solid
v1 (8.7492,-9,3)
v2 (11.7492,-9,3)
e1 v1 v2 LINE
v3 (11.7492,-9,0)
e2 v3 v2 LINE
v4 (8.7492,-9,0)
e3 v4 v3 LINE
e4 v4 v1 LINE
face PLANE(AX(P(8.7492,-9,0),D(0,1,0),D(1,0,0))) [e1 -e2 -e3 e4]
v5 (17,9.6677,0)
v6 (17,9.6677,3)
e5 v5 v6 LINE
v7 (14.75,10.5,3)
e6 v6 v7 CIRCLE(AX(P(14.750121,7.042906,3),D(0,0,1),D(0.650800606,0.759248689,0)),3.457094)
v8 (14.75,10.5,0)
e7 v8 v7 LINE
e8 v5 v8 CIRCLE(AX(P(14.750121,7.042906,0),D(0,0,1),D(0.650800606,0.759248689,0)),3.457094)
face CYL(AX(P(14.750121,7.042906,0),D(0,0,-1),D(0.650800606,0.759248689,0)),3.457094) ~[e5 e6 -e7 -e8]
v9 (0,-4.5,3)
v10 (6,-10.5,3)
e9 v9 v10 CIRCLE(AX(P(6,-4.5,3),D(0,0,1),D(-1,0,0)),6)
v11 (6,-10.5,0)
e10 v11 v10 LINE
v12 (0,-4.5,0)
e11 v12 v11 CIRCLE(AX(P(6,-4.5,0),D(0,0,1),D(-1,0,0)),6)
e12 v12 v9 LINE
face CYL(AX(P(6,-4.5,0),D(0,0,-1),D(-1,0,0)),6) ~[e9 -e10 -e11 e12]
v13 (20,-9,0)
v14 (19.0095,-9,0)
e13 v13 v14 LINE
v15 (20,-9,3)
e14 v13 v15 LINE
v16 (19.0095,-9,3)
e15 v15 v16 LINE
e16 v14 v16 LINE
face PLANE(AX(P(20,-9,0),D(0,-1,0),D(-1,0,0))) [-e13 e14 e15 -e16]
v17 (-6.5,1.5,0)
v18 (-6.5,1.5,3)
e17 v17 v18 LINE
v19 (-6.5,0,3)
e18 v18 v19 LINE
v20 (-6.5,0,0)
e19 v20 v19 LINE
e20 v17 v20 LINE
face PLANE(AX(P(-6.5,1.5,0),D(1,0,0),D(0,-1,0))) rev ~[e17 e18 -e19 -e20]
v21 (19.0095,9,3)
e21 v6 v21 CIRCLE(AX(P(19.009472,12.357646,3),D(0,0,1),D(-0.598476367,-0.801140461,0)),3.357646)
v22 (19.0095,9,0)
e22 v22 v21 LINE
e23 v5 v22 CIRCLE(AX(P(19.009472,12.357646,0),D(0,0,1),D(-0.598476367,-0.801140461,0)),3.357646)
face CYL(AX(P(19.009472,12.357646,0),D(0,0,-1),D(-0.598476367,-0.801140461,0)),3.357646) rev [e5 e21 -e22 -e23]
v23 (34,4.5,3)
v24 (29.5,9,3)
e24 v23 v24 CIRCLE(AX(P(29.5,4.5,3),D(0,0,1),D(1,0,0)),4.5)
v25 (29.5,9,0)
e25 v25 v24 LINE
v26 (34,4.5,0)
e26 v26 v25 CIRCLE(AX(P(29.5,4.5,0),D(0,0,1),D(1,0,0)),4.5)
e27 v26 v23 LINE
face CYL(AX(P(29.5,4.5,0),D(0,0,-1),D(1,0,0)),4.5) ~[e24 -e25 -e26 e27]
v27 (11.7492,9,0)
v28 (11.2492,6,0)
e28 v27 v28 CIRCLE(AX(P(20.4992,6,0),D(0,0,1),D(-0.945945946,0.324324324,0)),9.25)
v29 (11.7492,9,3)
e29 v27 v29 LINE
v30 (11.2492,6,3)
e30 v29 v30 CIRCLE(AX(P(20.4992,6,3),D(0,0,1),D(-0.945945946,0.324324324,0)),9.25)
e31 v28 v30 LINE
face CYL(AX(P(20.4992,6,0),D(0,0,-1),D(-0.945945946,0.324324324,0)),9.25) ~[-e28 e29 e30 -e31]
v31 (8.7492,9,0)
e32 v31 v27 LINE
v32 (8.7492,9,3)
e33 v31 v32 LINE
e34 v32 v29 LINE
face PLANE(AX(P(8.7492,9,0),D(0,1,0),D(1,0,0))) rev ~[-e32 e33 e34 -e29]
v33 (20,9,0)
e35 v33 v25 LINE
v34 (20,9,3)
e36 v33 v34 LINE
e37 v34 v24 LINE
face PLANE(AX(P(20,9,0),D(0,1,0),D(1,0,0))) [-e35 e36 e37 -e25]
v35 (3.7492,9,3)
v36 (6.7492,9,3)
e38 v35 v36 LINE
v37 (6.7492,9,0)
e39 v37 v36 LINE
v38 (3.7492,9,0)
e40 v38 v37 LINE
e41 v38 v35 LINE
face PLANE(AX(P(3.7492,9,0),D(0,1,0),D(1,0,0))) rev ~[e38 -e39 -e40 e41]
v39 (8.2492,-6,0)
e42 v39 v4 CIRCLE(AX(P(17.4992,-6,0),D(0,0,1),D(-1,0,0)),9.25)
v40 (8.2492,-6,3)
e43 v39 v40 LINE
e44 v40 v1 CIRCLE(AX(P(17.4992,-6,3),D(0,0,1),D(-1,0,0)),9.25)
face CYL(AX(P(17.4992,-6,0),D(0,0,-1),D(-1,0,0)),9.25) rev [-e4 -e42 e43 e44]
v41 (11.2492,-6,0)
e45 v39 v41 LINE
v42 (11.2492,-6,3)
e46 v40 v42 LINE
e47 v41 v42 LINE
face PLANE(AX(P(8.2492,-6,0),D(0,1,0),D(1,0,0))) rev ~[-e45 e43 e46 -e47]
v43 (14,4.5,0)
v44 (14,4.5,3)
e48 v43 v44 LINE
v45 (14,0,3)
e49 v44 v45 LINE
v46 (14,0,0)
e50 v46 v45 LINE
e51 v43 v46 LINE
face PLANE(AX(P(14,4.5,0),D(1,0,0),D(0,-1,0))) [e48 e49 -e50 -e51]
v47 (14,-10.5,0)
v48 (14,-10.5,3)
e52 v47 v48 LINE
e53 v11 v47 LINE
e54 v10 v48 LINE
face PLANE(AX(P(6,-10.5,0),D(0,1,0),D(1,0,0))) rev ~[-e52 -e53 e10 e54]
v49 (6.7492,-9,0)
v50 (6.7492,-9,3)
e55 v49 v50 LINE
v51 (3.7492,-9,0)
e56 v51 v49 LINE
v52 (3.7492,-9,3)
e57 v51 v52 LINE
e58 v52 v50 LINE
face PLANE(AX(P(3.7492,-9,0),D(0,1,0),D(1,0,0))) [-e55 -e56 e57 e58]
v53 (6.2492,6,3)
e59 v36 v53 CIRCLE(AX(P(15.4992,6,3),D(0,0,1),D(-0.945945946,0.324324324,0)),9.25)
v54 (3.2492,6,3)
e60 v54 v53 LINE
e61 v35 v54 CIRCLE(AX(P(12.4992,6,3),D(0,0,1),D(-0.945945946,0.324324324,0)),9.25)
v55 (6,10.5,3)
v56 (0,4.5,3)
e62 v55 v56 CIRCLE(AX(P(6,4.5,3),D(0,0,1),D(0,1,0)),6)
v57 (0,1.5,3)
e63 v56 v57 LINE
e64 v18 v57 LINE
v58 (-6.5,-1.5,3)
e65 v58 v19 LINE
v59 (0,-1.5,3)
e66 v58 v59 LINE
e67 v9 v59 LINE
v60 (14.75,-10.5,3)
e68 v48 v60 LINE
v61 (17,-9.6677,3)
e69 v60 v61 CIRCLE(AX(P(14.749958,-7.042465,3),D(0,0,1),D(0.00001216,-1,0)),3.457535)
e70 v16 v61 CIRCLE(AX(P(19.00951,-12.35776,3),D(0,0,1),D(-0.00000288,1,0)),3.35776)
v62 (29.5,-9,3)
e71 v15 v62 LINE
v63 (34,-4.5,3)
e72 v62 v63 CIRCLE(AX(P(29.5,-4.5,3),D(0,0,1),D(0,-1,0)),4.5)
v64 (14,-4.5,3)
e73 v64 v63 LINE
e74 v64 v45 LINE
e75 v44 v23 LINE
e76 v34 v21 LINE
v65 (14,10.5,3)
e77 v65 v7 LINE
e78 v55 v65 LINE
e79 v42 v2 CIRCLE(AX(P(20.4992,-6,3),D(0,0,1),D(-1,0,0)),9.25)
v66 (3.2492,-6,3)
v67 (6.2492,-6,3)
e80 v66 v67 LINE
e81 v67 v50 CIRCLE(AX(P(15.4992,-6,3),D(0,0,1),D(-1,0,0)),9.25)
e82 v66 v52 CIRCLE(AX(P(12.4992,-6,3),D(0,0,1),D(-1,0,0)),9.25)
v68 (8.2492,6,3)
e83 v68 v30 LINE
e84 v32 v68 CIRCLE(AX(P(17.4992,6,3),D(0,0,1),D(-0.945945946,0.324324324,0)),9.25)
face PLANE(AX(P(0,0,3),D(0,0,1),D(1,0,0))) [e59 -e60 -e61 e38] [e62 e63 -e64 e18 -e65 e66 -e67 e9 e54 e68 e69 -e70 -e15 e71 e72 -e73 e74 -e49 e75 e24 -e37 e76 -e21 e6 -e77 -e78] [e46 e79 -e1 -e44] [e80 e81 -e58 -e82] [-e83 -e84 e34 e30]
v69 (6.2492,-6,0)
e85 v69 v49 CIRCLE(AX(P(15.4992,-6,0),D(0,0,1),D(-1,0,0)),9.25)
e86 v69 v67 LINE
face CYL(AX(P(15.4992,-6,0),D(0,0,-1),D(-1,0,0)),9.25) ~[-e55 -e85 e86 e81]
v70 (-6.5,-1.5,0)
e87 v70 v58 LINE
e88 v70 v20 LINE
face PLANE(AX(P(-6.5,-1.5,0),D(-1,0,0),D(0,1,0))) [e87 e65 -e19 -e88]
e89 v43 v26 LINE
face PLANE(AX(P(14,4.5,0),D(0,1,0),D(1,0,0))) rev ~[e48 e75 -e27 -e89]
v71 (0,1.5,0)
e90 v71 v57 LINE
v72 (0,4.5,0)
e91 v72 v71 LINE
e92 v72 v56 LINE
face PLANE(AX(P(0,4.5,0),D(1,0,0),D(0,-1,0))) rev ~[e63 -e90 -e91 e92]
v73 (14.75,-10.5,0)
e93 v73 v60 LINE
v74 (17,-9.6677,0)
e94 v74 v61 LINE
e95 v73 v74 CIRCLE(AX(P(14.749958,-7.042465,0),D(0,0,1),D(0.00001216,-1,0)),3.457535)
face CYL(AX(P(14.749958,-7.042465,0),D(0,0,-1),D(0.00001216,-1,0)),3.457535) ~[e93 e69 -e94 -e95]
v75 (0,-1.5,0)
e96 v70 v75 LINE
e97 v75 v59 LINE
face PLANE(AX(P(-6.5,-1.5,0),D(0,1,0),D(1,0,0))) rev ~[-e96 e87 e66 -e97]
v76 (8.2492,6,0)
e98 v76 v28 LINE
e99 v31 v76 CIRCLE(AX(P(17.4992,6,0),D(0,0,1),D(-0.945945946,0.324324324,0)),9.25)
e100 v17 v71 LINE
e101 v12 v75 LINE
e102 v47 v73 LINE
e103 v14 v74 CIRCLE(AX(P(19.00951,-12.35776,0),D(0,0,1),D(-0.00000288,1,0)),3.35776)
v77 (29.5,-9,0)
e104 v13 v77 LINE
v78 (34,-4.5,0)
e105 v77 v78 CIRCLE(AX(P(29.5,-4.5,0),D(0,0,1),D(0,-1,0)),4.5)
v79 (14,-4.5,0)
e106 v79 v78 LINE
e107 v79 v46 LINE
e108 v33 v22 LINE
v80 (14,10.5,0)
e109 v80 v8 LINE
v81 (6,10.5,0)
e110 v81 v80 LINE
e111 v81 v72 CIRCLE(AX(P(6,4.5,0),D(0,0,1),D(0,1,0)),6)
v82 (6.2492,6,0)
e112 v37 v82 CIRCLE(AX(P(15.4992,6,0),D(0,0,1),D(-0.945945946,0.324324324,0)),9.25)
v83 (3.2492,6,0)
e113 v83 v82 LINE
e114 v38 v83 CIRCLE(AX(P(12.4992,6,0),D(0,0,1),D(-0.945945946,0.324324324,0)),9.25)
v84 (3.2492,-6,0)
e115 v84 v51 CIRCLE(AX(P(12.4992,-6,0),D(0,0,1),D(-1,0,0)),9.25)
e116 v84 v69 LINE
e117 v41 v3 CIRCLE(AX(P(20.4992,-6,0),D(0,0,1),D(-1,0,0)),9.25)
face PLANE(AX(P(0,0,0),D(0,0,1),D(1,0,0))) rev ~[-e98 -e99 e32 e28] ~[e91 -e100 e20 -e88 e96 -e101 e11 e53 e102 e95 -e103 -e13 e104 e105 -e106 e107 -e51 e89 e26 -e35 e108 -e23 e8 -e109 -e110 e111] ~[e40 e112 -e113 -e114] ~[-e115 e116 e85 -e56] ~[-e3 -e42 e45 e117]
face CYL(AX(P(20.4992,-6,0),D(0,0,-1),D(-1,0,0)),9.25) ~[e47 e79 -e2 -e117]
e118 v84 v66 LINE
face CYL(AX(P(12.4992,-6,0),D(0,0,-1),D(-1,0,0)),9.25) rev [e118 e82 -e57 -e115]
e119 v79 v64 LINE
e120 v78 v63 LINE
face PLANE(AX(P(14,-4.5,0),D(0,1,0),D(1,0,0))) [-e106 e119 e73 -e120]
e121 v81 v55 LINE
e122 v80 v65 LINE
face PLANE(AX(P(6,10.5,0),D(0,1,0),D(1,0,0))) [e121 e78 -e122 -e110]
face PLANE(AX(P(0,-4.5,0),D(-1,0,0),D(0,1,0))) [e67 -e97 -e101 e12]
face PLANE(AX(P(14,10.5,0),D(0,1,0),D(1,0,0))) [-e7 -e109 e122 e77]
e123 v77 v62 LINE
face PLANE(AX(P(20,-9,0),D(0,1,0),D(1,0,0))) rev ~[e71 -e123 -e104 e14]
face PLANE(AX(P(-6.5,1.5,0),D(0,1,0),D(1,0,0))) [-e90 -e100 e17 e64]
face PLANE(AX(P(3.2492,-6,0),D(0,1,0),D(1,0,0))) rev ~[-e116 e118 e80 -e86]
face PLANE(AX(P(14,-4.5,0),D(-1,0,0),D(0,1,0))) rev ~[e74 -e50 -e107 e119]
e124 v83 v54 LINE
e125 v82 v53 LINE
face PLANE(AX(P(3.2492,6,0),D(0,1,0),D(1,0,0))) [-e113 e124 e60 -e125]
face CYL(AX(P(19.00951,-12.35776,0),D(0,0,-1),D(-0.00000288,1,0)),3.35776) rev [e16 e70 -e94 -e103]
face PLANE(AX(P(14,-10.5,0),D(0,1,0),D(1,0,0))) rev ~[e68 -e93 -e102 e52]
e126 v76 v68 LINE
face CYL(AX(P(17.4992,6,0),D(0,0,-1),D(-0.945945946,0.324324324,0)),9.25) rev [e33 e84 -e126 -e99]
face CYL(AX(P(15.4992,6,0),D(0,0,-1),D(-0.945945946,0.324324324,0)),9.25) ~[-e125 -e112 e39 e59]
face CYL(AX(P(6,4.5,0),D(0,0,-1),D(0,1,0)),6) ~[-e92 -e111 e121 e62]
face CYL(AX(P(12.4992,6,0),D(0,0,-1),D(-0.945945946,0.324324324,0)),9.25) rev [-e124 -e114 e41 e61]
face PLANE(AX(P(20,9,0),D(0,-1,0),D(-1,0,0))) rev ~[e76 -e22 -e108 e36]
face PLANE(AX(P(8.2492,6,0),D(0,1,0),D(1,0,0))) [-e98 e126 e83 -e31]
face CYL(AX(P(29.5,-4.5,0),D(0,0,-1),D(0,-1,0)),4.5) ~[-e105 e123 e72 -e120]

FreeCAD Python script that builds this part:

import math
import FreeCAD as App
import Part
import Sketcher
Q = App.Units.Quantity

doc = App.newDocument("Part")
body = doc.addObject("PartDesign::Body", "Body")

sketch1 = doc.addObject("Sketcher::SketchObject", "Sketch")
body.addObject(sketch1)
sketch1.AttachmentSupport = (doc.XY_Plane, [""])
sketch1.MapMode = "FlatFace"
sketch1.addGeometry([
    Part.LineSegment(App.Vector(0, 1.5, 0), App.Vector(-6.5, 1.5, 0)),
    Part.LineSegment(App.Vector(-6.5, 1.5, 0), App.Vector(-6.5, -1.5, 0)),
    Part.LineSegment(App.Vector(-6.5, -1.5, 0), App.Vector(0, -1.5, 0)),
    Part.LineSegment(App.Vector(0, -1.5, 0), App.Vector(0, -4.5, 0)),
    Part.ArcOfCircle(Part.Circle(App.Vector(6, -4.5, 0), App.Vector(0, 0, 1), 6), math.radians(180), math.radians(270)),
    Part.LineSegment(App.Vector(6, -10.5, 0), App.Vector(14.8, -10.5, 0)),
    Part.ArcOfCircle(Part.Circle(App.Vector(14.8, -7, 0), App.Vector(0, 0, 1), 3.5), math.radians(-90), math.radians(-49)),
    Part.ArcOfCircle(Part.Circle(App.Vector(19, -12.4, 0), App.Vector(0, 0, 1), 3.4), math.radians(90), math.radians(127)),
    Part.LineSegment(App.Vector(19, -9, 0), App.Vector(29.5, -9, 0)),
    Part.ArcOfCircle(Part.Circle(App.Vector(29.5, -4.5, 0), App.Vector(0, 0, 1), 4.5), math.radians(-90), math.radians(0)),
    Part.LineSegment(App.Vector(34, -4.5, 0), App.Vector(14, -4.5, 0)),
    Part.LineSegment(App.Vector(14, -4.5, 0), App.Vector(14, 4.5, 0)),
    Part.LineSegment(App.Vector(14, 4.5, 0), App.Vector(34, 4.5, 0)),
    Part.ArcOfCircle(Part.Circle(App.Vector(29.5, 4.5, 0), App.Vector(0, 0, 1), 4.5), math.radians(0), math.radians(90)),
    Part.LineSegment(App.Vector(29.5, 9, 0), App.Vector(19, 9, 0)),
    Part.ArcOfCircle(Part.Circle(App.Vector(19, 12.4, 0), App.Vector(0, 0, 1), 3.4), math.radians(-127), math.radians(-90)),
    Part.ArcOfCircle(Part.Circle(App.Vector(14.8, 7, 0), App.Vector(0, 0, 1), 3.5), math.radians(49), math.radians(90)),
    Part.LineSegment(App.Vector(14.8, 10.5, 0), App.Vector(6, 10.5, 0)),
    Part.ArcOfCircle(Part.Circle(App.Vector(6, 4.5, 0), App.Vector(0, 0, 1), 6), math.radians(90), math.radians(180)),
    Part.LineSegment(App.Vector(0, 4.5, 0), App.Vector(0, 1.5, 0)),
    Part.ArcOfCircle(Part.Circle(App.Vector(12.5, -6, 0), App.Vector(0, 0, 1), 9.2), math.radians(180), math.radians(198.92)),
    Part.LineSegment(App.Vector(3.2, -6, 0), App.Vector(6.2, -6, 0)),
    Part.ArcOfCircle(Part.Circle(App.Vector(15.5, -6, 0), App.Vector(0, 0, 1), 9.2), math.radians(180), math.radians(198.92)),
    Part.LineSegment(App.Vector(6.7, -9, 0), App.Vector(3.7, -9, 0)),
    Part.LineSegment(App.Vector(8.2, -6, 0), App.Vector(11.2, -6, 0)),
    Part.ArcOfCircle(Part.Circle(App.Vector(20.5, -6, 0), App.Vector(0, 0, 1), 9.2), math.radians(180), math.radians(198.92)),
    Part.LineSegment(App.Vector(11.7, -9, 0), App.Vector(8.7, -9, 0)),
    Part.ArcOfCircle(Part.Circle(App.Vector(17.5, -6, 0), App.Vector(0, 0, 1), 9.2), math.radians(180), math.radians(198.92)),
    Part.LineSegment(App.Vector(6.2, 6, 0), App.Vector(3.2, 6, 0)),
    Part.ArcOfCircle(Part.Circle(App.Vector(12.5, 6, 0), App.Vector(0, 0, 1), 9.2), math.radians(161.08), math.radians(180)),
    Part.LineSegment(App.Vector(3.7, 9, 0), App.Vector(6.7, 9, 0)),
    Part.ArcOfCircle(Part.Circle(App.Vector(15.5, 6, 0), App.Vector(0, 0, 1), 9.2), math.radians(161.08), math.radians(180)),
    Part.LineSegment(App.Vector(11.2, 6, 0), App.Vector(8.2, 6, 0)),
    Part.ArcOfCircle(Part.Circle(App.Vector(17.5, 6, 0), App.Vector(0, 0, 1), 9.2), math.radians(161.08), math.radians(180)),
    Part.LineSegment(App.Vector(8.7, 9, 0), App.Vector(11.7, 9, 0)),
    Part.ArcOfCircle(Part.Circle(App.Vector(20.5, 6, 0), App.Vector(0, 0, 1), 9.2), math.radians(161.08), math.radians(180)),
], False)
sketch1.addConstraint([
    Sketcher.Constraint("Coincident", 0, 2, 1, 1),
    Sketcher.Constraint("Coincident", 1, 2, 2, 1),
    Sketcher.Constraint("Coincident", 2, 2, 3, 1),
    Sketcher.Constraint("Tangent", 3, 2, 4, 1),
    Sketcher.Constraint("Tangent", 4, 2, 5, 1),
    Sketcher.Constraint("Tangent", 5, 2, 6, 1),
    Sketcher.Constraint("Coincident", 6, 2, 7, 2),
    Sketcher.Constraint("Tangent", 7, 1, 8, 1),
    Sketcher.Constraint("Tangent", 8, 2, 9, 1),
    Sketcher.Constraint("Coincident", 9, 2, 10, 1),
    Sketcher.Constraint("Coincident", 10, 2, 11, 1),
    Sketcher.Constraint("Coincident", 11, 2, 12, 1),
    Sketcher.Constraint("Coincident", 12, 2, 13, 1),
    Sketcher.Constraint("Tangent", 13, 2, 14, 1),
    Sketcher.Constraint("Tangent", 14, 2, 15, 2),
    Sketcher.Constraint("Coincident", 15, 1, 16, 1),
    Sketcher.Constraint("Tangent", 16, 2, 17, 1),
    Sketcher.Constraint("Tangent", 17, 2, 18, 1),
    Sketcher.Constraint("Tangent", 18, 2, 19, 1),
    Sketcher.Constraint("Coincident", 19, 2, 0, 1),
    Sketcher.Constraint("Coincident", 20, 1, 21, 1),
    Sketcher.Constraint("Coincident", 21, 2, 22, 1),
    Sketcher.Constraint("Coincident", 22, 2, 23, 1),
    Sketcher.Constraint("Coincident", 23, 2, 20, 2),
    Sketcher.Constraint("Coincident", 24, 2, 25, 1),
    Sketcher.Constraint("Coincident", 25, 2, 26, 1),
    Sketcher.Constraint("Coincident", 26, 2, 27, 2),
    Sketcher.Constraint("Coincident", 27, 1, 24, 1),
    Sketcher.Constraint("Coincident", 28, 2, 29, 2),
    Sketcher.Constraint("Coincident", 29, 1, 30, 1),
    Sketcher.Constraint("Coincident", 30, 2, 31, 1),
    Sketcher.Constraint("Coincident", 31, 2, 28, 1),
    Sketcher.Constraint("Coincident", 32, 2, 33, 2),
    Sketcher.Constraint("Coincident", 33, 1, 34, 1),
    Sketcher.Constraint("Coincident", 34, 2, 35, 1),
    Sketcher.Constraint("Coincident", 35, 2, 32, 1),
    Sketcher.Constraint("Horizontal", 0),
    Sketcher.Constraint("Vertical", 1),
    Sketcher.Constraint("Horizontal", 2),
    Sketcher.Constraint("Vertical", 3),
    Sketcher.Constraint("Horizontal", 5),
    Sketcher.Constraint("Horizontal", 8),
    Sketcher.Constraint("Horizontal", 10),
    Sketcher.Constraint("Vertical", 11),
    Sketcher.Constraint("Horizontal", 12),
    Sketcher.Constraint("Horizontal", 14),
    Sketcher.Constraint("Horizontal", 17),
    Sketcher.Constraint("Vertical", 19),
    Sketcher.Constraint("Horizontal", 21),
    Sketcher.Constraint("Horizontal", 23),
    Sketcher.Constraint("Horizontal", 24),
    Sketcher.Constraint("Horizontal", 26),
    Sketcher.Constraint("Horizontal", 28),
    Sketcher.Constraint("Horizontal", 30),
    Sketcher.Constraint("Horizontal", 32),
    Sketcher.Constraint("Horizontal", 34),
    Sketcher.Constraint("Equal", 9, 13),
    Sketcher.Constraint("Equal", 7, 15),
    Sketcher.Constraint("Equal", 6, 16),
    Sketcher.Constraint("Equal", 4, 18),
    Sketcher.Constraint("Equal", 20, 22),
    Sketcher.Constraint("Equal", 22, 25),
    Sketcher.Constraint("Equal", 25, 27),
    Sketcher.Constraint("Equal", 27, 29),
    Sketcher.Constraint("Equal", 29, 31),
    Sketcher.Constraint("Equal", 31, 33),
    Sketcher.Constraint("Equal", 33, 35),
    Sketcher.Constraint("Symmetric", 3, 2, 18, 2, -1, 1),
    Sketcher.Constraint("Symmetric", 9, 3, 13, 3, -1),
    Sketcher.Constraint("Symmetric", 20, 3, 29, 3, -1),
    Sketcher.Constraint("Symmetric", 22, 3, 31, 3, -1),
    Sketcher.Constraint("Symmetric", 27, 3, 33, 3, -1),
    Sketcher.Constraint("Symmetric", 25, 3, 35, 3, -1),
    Sketcher.Constraint("Symmetric", 6, 2, 15, 1, -1),
    Sketcher.Constraint("Symmetric", 2, 2, 19, 2, -1),
    Sketcher.Constraint("Horizontal", 4, 3, 9, 3),
    Sketcher.Constraint("Horizontal", 20, 3, 22, 3),
    Sketcher.Constraint("Horizontal", 22, 3, 25, 3),
    Sketcher.Constraint("Horizontal", 25, 3, 27, 3),
    Sketcher.Constraint("Horizontal", 3, 2, 9, 2),
    Sketcher.Constraint("Horizontal", 18, 3, 11, 2),
    Sketcher.Constraint("Horizontal", 27, 3, 20, 1),
    Sketcher.Constraint("Horizontal", 8, 2, 22, 2),
    Sketcher.Constraint("Horizontal", 21, 2, 24, 2),
    Sketcher.Constraint("Horizontal", 23, 2, 25, 2),
    Sketcher.Constraint("Horizontal", 35, 3, 28, 2),
    Sketcher.Constraint("Horizontal", 14, 2, 29, 1),
    Sketcher.Constraint("Horizontal", 31, 2, 32, 2),
    Sketcher.Constraint("Horizontal", 30, 2, 33, 1),
    Sketcher.Constraint("Equal", 23, 24),
    Sketcher.Constraint("Equal", 34, 1),
    Sketcher.Constraint("Equal", 1, 3),
    Sketcher.Constraint("Radius", 4, Q("6 mm")),
    Sketcher.Constraint("Radius", 9, Q("4.5 mm")),
    Sketcher.Constraint("DistanceX", 10, 2, 10, 1, Q("20 mm")),
    Sketcher.Constraint("DistanceX", 21, 1, 21, 2, Q("3 mm")),
    Sketcher.Constraint("Radius", 20, Q("9.25 mm")),
    Sketcher.Constraint("DistanceX", 0, 2, 0, 1, Q("6.5 mm")),
    Sketcher.Constraint("DistanceY", 20, 3, -1, 1, Q("6 mm")),
    Sketcher.Constraint("DistanceX", -1, 1, 6, 2, Q("17 mm")),
    Sketcher.Constraint("DistanceX", -1, 1, 9, 2, Q("34 mm")),
    Sketcher.Constraint("DistanceX", 22, 3, 25, 3, Q("5 mm")),
    Sketcher.Constraint("DistanceX", 5, 1, 5, 2, Q("8.75 mm")),
    Sketcher.Constraint("Radius", 6, Q("3.4573 mm")),
    Sketcher.Constraint("Radius", 7, Q("3.3577 mm")),
    Sketcher.Constraint("DistanceX", -1, 1, 20, 3, Q("12.4992 mm")),
])
pad1 = doc.addObject("PartDesign::Pad", "Pad")
body.addObject(pad1)
pad1.Profile = sketch1
pad1.Length = 3

doc.recompute()
